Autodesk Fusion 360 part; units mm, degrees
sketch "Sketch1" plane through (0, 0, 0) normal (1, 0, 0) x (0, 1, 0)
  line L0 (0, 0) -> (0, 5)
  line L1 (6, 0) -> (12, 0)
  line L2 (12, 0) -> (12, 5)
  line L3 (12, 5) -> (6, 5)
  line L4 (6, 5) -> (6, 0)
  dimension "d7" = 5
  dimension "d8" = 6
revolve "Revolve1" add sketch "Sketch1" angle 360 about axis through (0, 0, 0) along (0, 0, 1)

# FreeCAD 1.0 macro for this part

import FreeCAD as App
import Part
import Sketcher

V = App.Vector
Q = App.Units.Quantity

doc = App.newDocument("Part")
body = doc.addObject("PartDesign::Body", "Body")

sketch1 = body.newObject("Sketcher::SketchObject", "Sketch")
sketch1.AttachmentSupport = (doc.getObject("YZ_Plane"), [""])
sketch1.MapMode = "FlatFace"
sketch1.addGeometry([
    Part.LineSegment(V(6, 5, 0), V(6, 0, 0)),
    Part.LineSegment(V(6, 0, 0), V(12, 0, 0)),
    Part.LineSegment(V(12, 0, 0), V(12, 5, 0)),
    Part.LineSegment(V(12, 5, 0), V(6, 5, 0)),
], False)
sketch1.addConstraint([
    Sketcher.Constraint("Coincident", 0, 2, 1, 1),
    Sketcher.Constraint("Coincident", 1, 2, 2, 1),
    Sketcher.Constraint("Coincident", 2, 2, 3, 1),
    Sketcher.Constraint("Coincident", 3, 2, 0, 1),
    Sketcher.Constraint("Vertical", 0),
    Sketcher.Constraint("Horizontal", 1),
    Sketcher.Constraint("Vertical", 2),
    Sketcher.Constraint("Horizontal", 3),
    Sketcher.Constraint("PointOnObject", 0, 2, -1),
    Sketcher.Constraint("DistanceX", 1, 1, 1, 2, Q("6 mm")),
    Sketcher.Constraint("DistanceY", 0, 2, 0, 1, Q("5 mm")),
    Sketcher.Constraint("DistanceX", -1, 1, 0, 2, Q("6 mm")),
])
revolution = body.newObject("PartDesign::Revolution", "Revolution")
revolution.Profile = sketch1
revolution.ReferenceAxis = (sketch1, ["V_Axis"])
revolution.Angle = 360

doc.recompute()
